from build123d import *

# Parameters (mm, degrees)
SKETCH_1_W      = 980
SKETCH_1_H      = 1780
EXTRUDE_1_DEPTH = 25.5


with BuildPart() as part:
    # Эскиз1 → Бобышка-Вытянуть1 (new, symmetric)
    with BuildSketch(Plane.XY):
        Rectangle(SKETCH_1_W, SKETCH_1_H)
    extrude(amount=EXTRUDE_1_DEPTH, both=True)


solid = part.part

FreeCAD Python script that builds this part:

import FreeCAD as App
import Part
import Sketcher
Q = App.Units.Quantity

doc = App.newDocument("Part")
body = doc.addObject("PartDesign::Body", "Body")

# Sketch on XY plane
sketch1 = body.newObject("Sketcher::SketchObject", "Sketch")
sketch1.AttachmentSupport = (doc.getObject("XY_Plane"), [""])
sketch1.MapMode = "FlatFace"
sketch1.addGeometry([
    Part.LineSegment(App.Vector(-490, 890, 0), App.Vector(-490, -890, 0)),
    Part.LineSegment(App.Vector(-490, -890, 0), App.Vector(490, -890, 0)),
    Part.LineSegment(App.Vector(490, -890, 0), App.Vector(490, 890, 0)),
    Part.LineSegment(App.Vector(490, 890, 0), App.Vector(-490, 890, 0)),
], False)
sketch1.addConstraint([
    Sketcher.Constraint("Coincident", 0, 2, 1, 1),
    Sketcher.Constraint("Coincident", 1, 2, 2, 1),
    Sketcher.Constraint("Coincident", 2, 2, 3, 1),
    Sketcher.Constraint("Coincident", 3, 2, 0, 1),
    Sketcher.Constraint("Vertical", 0),
    Sketcher.Constraint("Horizontal", 1),
    Sketcher.Constraint("Vertical", 2),
    Sketcher.Constraint("Horizontal", 3),
    Sketcher.Constraint("Symmetric", 0, 2, 2, 2, -1, 1),
    Sketcher.Constraint("DistanceX", 1, 1, 1, 2, Q("980 mm")),
    Sketcher.Constraint("DistanceY", 0, 2, 0, 1, Q("1780 mm")),
])
pad1 = body.newObject("PartDesign::Pad", "Pad")
pad1.Profile = sketch1
pad1.Length = 51
pad1.Midplane = True

doc.recompute()
